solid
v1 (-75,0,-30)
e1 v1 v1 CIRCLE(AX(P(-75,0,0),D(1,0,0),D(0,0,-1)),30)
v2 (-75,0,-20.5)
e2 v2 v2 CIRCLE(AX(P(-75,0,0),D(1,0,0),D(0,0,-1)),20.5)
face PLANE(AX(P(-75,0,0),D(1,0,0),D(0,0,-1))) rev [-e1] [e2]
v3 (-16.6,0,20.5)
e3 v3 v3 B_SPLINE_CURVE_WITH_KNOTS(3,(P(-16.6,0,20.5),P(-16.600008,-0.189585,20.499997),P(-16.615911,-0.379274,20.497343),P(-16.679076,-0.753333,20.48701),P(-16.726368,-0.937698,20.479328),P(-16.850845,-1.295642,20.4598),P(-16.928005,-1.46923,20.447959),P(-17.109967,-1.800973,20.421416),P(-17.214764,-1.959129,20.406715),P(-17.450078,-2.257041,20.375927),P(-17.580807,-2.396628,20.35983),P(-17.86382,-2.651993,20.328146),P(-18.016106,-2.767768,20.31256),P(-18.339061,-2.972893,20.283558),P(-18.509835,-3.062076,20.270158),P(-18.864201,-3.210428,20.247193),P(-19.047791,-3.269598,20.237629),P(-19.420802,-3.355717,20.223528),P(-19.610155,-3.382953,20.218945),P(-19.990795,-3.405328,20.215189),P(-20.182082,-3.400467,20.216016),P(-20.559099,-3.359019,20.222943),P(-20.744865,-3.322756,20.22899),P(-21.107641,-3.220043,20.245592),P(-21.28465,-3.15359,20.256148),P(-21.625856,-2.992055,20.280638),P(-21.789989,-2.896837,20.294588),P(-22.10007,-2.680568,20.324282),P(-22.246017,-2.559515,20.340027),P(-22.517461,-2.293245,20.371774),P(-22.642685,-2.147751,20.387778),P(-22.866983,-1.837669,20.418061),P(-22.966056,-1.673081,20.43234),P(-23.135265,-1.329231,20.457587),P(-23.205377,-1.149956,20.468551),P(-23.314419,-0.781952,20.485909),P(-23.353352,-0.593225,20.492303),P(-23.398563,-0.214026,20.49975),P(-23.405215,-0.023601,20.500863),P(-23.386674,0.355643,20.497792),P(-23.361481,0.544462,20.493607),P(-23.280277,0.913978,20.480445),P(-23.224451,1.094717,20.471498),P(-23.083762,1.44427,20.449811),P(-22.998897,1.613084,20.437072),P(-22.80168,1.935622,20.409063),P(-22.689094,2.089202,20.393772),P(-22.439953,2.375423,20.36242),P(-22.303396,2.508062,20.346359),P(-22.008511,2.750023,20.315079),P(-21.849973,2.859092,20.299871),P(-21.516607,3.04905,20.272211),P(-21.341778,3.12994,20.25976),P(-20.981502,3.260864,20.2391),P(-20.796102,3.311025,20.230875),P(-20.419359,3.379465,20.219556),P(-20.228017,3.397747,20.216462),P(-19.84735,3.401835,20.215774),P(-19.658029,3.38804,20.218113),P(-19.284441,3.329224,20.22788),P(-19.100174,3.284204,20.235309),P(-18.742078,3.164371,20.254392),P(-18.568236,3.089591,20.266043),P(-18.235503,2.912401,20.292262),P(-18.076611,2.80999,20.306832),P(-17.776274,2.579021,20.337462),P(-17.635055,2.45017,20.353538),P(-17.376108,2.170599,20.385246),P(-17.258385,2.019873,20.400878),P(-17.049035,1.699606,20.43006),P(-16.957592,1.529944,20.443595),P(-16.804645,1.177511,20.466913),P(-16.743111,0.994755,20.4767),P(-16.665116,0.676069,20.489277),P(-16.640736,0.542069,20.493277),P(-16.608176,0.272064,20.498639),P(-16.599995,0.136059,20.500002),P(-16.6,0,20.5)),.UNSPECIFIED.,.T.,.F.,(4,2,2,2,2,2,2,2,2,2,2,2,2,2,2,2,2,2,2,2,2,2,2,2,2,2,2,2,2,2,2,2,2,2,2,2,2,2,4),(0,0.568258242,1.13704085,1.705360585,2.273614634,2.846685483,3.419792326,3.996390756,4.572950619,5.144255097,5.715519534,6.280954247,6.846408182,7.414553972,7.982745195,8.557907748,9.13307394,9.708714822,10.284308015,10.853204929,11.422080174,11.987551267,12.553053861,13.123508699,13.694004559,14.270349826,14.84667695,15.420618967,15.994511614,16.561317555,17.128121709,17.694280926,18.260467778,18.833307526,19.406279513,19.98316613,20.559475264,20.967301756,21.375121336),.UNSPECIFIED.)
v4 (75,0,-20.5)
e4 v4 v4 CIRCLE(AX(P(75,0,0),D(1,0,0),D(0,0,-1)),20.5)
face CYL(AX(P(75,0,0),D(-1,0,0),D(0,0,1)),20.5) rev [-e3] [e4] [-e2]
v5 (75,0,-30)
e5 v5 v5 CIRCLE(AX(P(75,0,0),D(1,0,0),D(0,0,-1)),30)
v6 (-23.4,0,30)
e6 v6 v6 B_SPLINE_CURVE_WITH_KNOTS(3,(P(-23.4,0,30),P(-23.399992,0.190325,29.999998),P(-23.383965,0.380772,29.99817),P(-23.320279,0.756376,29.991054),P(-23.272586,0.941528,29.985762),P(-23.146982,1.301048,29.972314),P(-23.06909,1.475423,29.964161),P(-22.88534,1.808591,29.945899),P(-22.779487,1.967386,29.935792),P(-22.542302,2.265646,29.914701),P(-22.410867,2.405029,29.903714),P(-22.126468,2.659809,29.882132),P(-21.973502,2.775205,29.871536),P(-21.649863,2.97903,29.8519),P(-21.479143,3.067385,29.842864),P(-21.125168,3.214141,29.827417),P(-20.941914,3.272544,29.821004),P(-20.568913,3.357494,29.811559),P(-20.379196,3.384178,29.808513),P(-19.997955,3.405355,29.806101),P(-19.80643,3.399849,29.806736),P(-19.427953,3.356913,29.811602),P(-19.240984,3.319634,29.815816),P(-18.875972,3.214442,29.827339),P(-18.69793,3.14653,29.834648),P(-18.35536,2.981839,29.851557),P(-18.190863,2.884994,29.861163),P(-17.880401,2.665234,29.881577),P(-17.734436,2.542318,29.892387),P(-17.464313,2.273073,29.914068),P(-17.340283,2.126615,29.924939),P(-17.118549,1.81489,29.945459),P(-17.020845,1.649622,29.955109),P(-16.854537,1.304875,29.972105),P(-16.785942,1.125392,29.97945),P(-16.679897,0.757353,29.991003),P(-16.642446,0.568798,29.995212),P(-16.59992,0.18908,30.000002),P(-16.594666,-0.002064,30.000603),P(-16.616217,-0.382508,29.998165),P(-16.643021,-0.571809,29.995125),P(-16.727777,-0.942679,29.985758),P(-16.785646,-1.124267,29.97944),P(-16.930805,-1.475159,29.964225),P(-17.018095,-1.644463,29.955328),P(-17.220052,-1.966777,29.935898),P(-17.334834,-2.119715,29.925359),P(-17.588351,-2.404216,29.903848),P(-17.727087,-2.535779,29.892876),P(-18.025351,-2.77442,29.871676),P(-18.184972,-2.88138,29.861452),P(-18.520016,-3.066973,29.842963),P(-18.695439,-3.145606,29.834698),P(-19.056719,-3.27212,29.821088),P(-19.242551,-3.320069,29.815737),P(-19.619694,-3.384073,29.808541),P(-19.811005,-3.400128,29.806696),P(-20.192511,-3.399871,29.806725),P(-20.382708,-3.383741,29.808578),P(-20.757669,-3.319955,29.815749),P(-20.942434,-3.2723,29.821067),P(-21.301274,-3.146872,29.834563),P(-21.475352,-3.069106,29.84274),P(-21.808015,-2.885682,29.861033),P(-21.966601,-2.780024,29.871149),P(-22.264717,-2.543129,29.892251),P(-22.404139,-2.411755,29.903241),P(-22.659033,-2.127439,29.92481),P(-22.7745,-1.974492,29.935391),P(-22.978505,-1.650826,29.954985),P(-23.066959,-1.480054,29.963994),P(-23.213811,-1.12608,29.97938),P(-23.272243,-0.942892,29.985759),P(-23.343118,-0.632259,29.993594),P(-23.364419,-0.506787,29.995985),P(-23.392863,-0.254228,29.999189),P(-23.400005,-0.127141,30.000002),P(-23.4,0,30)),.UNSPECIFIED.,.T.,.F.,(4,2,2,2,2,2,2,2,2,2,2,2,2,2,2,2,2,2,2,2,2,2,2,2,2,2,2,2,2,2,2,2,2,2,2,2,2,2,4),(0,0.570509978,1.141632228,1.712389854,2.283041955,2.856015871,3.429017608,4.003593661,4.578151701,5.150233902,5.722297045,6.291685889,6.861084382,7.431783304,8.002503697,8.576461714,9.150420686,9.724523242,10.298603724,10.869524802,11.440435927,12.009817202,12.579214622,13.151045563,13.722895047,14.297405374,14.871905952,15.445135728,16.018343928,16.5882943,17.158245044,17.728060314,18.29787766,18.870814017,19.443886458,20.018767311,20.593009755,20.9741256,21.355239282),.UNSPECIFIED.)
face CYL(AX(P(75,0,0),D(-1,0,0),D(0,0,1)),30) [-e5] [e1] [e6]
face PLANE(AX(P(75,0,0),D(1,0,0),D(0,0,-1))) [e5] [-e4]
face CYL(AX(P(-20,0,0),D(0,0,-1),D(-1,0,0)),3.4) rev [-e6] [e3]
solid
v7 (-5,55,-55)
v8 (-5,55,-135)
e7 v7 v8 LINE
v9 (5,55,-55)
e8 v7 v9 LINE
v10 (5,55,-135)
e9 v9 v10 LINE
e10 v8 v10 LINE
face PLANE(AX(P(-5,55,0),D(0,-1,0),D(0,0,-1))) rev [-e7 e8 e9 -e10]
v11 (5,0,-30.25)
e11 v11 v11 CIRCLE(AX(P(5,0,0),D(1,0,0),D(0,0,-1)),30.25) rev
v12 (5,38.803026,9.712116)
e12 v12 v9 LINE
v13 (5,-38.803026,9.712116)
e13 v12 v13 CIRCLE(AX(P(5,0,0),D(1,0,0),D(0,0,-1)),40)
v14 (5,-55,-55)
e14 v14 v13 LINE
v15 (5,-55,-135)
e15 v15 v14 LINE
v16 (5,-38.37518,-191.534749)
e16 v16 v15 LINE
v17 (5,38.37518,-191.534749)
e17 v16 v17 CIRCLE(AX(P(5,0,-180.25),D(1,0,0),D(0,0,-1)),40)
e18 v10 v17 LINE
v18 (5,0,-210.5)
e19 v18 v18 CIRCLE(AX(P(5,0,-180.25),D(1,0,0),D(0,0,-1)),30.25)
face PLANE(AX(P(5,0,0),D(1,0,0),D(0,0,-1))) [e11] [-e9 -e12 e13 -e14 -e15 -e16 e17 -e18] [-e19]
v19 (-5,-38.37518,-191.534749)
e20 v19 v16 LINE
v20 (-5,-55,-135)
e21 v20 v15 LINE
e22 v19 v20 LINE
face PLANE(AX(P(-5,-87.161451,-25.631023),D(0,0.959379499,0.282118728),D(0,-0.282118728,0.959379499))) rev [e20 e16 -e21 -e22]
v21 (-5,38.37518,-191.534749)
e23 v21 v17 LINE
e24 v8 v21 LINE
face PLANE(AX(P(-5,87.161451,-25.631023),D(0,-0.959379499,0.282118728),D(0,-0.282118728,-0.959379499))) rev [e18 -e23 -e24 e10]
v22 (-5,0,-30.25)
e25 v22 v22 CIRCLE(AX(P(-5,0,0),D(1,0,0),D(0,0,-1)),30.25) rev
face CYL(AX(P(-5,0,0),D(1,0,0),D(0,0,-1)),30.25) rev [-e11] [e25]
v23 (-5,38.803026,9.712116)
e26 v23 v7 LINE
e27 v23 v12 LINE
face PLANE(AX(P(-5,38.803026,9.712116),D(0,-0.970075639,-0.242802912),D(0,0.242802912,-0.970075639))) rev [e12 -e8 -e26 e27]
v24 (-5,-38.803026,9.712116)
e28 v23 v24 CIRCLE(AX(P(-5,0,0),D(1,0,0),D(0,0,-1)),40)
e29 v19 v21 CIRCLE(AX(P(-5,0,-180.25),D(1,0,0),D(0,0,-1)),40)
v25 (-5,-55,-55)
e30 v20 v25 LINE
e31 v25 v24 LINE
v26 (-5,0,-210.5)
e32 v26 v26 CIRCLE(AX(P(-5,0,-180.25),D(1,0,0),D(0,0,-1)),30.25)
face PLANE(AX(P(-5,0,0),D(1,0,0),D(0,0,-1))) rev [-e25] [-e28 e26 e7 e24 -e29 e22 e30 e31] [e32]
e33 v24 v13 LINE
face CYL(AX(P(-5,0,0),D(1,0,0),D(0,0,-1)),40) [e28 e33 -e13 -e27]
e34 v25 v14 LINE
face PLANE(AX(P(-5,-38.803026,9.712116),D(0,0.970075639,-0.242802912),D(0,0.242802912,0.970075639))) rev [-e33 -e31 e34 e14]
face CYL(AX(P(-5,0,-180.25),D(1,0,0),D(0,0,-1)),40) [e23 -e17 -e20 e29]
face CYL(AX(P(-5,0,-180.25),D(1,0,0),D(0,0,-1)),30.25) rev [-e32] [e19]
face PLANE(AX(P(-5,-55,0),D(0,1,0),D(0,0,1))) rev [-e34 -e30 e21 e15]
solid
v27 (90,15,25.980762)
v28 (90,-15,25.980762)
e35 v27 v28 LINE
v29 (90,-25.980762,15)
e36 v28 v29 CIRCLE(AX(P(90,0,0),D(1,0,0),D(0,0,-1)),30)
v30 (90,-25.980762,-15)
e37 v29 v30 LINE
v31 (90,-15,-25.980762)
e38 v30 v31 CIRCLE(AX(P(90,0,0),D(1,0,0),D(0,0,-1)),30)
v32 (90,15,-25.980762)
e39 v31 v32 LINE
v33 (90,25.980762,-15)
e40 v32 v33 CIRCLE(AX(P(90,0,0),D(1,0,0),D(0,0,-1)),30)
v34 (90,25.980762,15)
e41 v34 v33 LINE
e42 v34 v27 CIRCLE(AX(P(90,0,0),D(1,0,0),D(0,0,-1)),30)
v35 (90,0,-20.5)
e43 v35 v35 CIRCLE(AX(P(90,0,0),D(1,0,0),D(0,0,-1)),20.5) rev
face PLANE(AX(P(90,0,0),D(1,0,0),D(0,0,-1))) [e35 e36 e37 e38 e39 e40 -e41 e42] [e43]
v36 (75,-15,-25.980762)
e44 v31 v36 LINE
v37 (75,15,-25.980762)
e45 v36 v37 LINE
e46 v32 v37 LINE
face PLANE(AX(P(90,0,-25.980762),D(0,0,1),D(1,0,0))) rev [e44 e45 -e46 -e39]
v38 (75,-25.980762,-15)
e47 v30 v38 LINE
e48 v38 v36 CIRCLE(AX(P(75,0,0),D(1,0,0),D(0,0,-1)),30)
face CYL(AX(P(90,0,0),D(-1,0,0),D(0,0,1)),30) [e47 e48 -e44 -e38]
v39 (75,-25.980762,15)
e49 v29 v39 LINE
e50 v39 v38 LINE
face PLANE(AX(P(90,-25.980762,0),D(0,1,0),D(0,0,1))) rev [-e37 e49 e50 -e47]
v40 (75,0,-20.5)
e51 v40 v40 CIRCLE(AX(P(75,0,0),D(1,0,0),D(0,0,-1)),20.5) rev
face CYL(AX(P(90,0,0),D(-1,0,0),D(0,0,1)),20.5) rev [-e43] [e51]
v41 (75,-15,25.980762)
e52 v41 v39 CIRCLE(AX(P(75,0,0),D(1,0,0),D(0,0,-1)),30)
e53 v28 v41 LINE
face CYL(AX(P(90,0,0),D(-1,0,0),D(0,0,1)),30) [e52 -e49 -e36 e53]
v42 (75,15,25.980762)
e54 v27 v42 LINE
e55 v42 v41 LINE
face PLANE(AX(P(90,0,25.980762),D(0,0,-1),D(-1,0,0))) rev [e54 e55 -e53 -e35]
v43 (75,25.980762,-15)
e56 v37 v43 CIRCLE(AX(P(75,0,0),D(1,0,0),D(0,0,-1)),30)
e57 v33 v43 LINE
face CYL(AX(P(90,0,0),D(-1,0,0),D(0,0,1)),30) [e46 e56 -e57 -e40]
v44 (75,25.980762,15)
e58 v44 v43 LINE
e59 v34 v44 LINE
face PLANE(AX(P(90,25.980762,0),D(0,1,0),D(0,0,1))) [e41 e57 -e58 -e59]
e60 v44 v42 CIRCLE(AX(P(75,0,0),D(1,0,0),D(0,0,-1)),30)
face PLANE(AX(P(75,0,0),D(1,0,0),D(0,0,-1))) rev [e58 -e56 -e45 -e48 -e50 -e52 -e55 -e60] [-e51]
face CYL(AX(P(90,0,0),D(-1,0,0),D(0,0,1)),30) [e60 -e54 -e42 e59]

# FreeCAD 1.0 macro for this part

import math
import FreeCAD as App
import Part
import Sketcher
from FreeCAD import Vector


def add_polygon(sketch, points):
    """Adds a closed chain of lines whose ends are joined by coincident constraints."""
    first, n = sketch.GeometryCount, len(points)
    for a, b in zip(points, points[1:] + points[:1]):
        sketch.addGeometry(Part.LineSegment(App.Vector(*a, 0), App.Vector(*b, 0)), False)
    for i in range(n):
        sketch.addConstraint(Sketcher.Constraint("Coincident", first + i, 2, first + (i + 1) % n, 1))

doc = App.newDocument("Part")
params = doc.addObject("Spreadsheet::Sheet", "Params")
for row, (alias, value) in enumerate([
    ("sketch1_diameter", "60 mm"),
    ("sketch1_diameter2", "41 mm"),
    ("pad1_length", "150 mm"),
    ("sketch2_height", "30 mm"),
    ("sketch2_width", "3.4 mm"),
    ("groove_angle", "360 deg"),
    ("sketch3_diameter", "41 mm"),
    ("sketch3_radius", "30 mm"),
    ("sketch3_width", "30 mm"),
    ("pad2_length", "15 mm"),
    ("sketch4_diameter", "80 mm"),
    ("sketch4_diameter2", "60.5 mm"),
    ("pad3_length", "10 mm"),
    ("sketch5_radius", "40 mm"),
    ("sketch5_diameter", "60.5 mm"),
    ("sketch5_height", "80 mm"),
    ("pad4_length", "10 mm"),
], start=1):
    params.set(f"A{row}", alias)
    params.set(f"B{row}", "=" + value)
    params.setAlias(f"B{row}", alias)

body = doc.addObject("PartDesign::Body", "Body")

# Sketch on YZ plane
sketch1 = body.newObject("Sketcher::SketchObject", "Sketch")
sketch1.AttachmentSupport = (doc.getObject("YZ_Plane"), [""])
sketch1.MapMode = "FlatFace"
sketch1.AttachmentOffset = App.Placement(Vector(0, 0, -75), App.Rotation())
sketch1.addGeometry([
    Part.Circle(Vector(0, 0, 0), Vector(0, 0, 1), 30),
    Part.Circle(Vector(0, 0, 0), Vector(0, 0, 1), 20.5),
], False)
sketch1.addConstraint([
    Sketcher.Constraint("Coincident", 0, 3, -1, 1),
    Sketcher.Constraint("Coincident", 1, 3, -1, 1),
    Sketcher.Constraint("Diameter", 0, 60.0),
    Sketcher.Constraint("Diameter", 1, 41.0),
])
sketch1.setExpression("Constraints[2]", "Params.sketch1_diameter")
sketch1.setExpression("Constraints[3]", "Params.sketch1_diameter2")
pad1 = body.newObject("PartDesign::Pad", "Pad")
pad1.Profile = sketch1
pad1.setExpression("Length", "Params.pad1_length")

# Sketch on YZ plane
sketch2 = body.newObject("Sketcher::SketchObject", "Sketch001")
sketch2.AttachmentSupport = (doc.getObject("YZ_Plane"), [""])
sketch2.MapMode = "FlatFace"
sketch2.AttachmentOffset = App.Placement(Vector(0, 0, -20), App.Rotation())
add_polygon(sketch2, [(0, 30), (0, 0), (3.4, 0), (3.4, 30)])  # lines 0-3
sketch2.addConstraint([
    Sketcher.Constraint("Vertical", 0),
    Sketcher.Constraint("Horizontal", 1),
    Sketcher.Constraint("Vertical", 2),
    Sketcher.Constraint("Horizontal", 3),
    Sketcher.Constraint("Coincident", 0, 2, -1, 1),
    Sketcher.Constraint("DistanceY", 0, 2, 0, 1, 30.0),
    Sketcher.Constraint("DistanceX", 1, 1, 1, 2, 3.4),
])
sketch2.setExpression("Constraints[9]", "Params.sketch2_height")
sketch2.setExpression("Constraints[10]", "Params.sketch2_width")
groove = body.newObject("PartDesign::Groove", "Groove")
groove.Profile = sketch2
groove.ReferenceAxis = (sketch2, ["V_Axis"])
groove.setExpression("Angle", "Params.groove_angle")
body2 = doc.addObject("PartDesign::Body", "Body001")

# Sketch on YZ plane
sketch3 = body2.newObject("Sketcher::SketchObject", "Sketch002")
sketch3.AttachmentSupport = (doc.getObject("YZ_Plane001"), [""])
sketch3.MapMode = "FlatFace"
sketch3.AttachmentOffset = App.Placement(Vector(0, 0, 75), App.Rotation())
sketch3.addGeometry([
    Part.LineSegment(Vector(25.980762, -15, 0), Vector(25.980762, 15, 0)),  # 0
    Part.ArcOfCircle(Part.Circle(Vector(0, 0, 0), Vector(0, 0, 1), 30), math.radians(30), math.radians(60)),  # 1
    Part.LineSegment(Vector(15, 25.980762, 0), Vector(-15, 25.980762, 0)),  # 2
    Part.ArcOfCircle(Part.Circle(Vector(0, 0, 0), Vector(0, 0, 1), 30), math.radians(120), math.radians(150)),  # 3
    Part.LineSegment(Vector(-25.980762, 15, 0), Vector(-25.980762, -15, 0)),  # 4
    Part.ArcOfCircle(Part.Circle(Vector(0, 0, 0), Vector(0, 0, 1), 30), math.radians(-150), math.radians(-120)),  # 5
    Part.LineSegment(Vector(-15, -25.980762, 0), Vector(15, -25.980762, 0)),  # 6
    Part.ArcOfCircle(Part.Circle(Vector(0, 0, 0), Vector(0, 0, 1), 30), math.radians(-60), math.radians(-30)),  # 7
    Part.Circle(Vector(0, 0, 0), Vector(0, 0, 1), 20.5),  # 8
], False)
sketch3.addConstraint([
    Sketcher.Constraint("Coincident", 0, 2, 1, 1),
    Sketcher.Constraint("Coincident", 1, 2, 2, 1),
    Sketcher.Constraint("Coincident", 2, 2, 3, 1),
    Sketcher.Constraint("Coincident", 3, 2, 4, 1),
    Sketcher.Constraint("Coincident", 4, 2, 5, 1),
    Sketcher.Constraint("Coincident", 5, 2, 6, 1),
    Sketcher.Constraint("Coincident", 6, 2, 7, 1),
    Sketcher.Constraint("Coincident", 7, 2, 0, 1),
    Sketcher.Constraint("Vertical", 0),
    Sketcher.Constraint("Horizontal", 2),
    Sketcher.Constraint("Vertical", 4),
    Sketcher.Constraint("Horizontal", 6),
    Sketcher.Constraint("Coincident", 1, 3, -1, 1),
    Sketcher.Constraint("Coincident", 3, 3, -1, 1),
    Sketcher.Constraint("Coincident", 5, 3, -1, 1),
    Sketcher.Constraint("Coincident", 7, 3, -1, 1),
    Sketcher.Constraint("Coincident", 8, 3, -1, 1),
    Sketcher.Constraint("Equal", 1, 3),
    Sketcher.Constraint("Equal", 3, 5),
    Sketcher.Constraint("Equal", 5, 7),
    Sketcher.Constraint("Horizontal", 0, 2, 3, 2),
    Sketcher.Constraint("Vertical", 2, 2, 5, 2),
    Sketcher.Constraint("Equal", 6, 0),
    Sketcher.Constraint("Diameter", 8, 41.0),
    Sketcher.Constraint("Radius", 1, 30.0),
    Sketcher.Constraint("DistanceX", 2, 2, 2, 1, 30.0),
])
sketch3.setExpression("Constraints[23]", "Params.sketch3_diameter")
sketch3.setExpression("Constraints[24]", "Params.sketch3_radius")
sketch3.setExpression("Constraints[25]", "Params.sketch3_width")
pad2 = body2.newObject("PartDesign::Pad", "Pad001")
pad2.Profile = sketch3
pad2.setExpression("Length", "Params.pad2_length")
body3 = doc.addObject("PartDesign::Body", "Body002")

# Sketch on YZ plane
sketch4 = body3.newObject("Sketcher::SketchObject", "Sketch003")
sketch4.AttachmentSupport = (doc.getObject("YZ_Plane002"), [""])
sketch4.MapMode = "FlatFace"
sketch4.AttachmentOffset = App.Placement(Vector(0, 0, 5), App.Rotation())
sketch4.addGeometry([
    Part.Circle(Vector(0, 0, 0), Vector(0, 0, 1), 40),
    Part.Circle(Vector(0, 0, 0), Vector(0, 0, 1), 30.25),
], False)
sketch4.addConstraint([
    Sketcher.Constraint("Coincident", 0, 3, -1, 1),
    Sketcher.Constraint("Coincident", 1, 3, -1, 1),
    Sketcher.Constraint("Diameter", 0, 80.0),
    Sketcher.Constraint("Diameter", 1, 60.5),
])
sketch4.setExpression("Constraints[2]", "Params.sketch4_diameter")
sketch4.setExpression("Constraints[3]", "Params.sketch4_diameter2")
pad3 = body3.newObject("PartDesign::Pad", "Pad002")
pad3.Profile = sketch4
pad3.setExpression("Length", "Params.pad3_length")
pad3.Reversed = True
body4 = doc.addObject("PartDesign::Body", "Body003")

# Sketch on YZ plane
sketch5 = body4.newObject("Sketcher::SketchObject", "Sketch004")
sketch5.AttachmentSupport = (doc.getObject("YZ_Plane003"), [""])
sketch5.MapMode = "FlatFace"
sketch5.AttachmentOffset = App.Placement(Vector(0, 0, 5), App.Rotation())
sketch5.addGeometry([
    Part.LineSegment(Vector(55, -55, 0), Vector(38.803026, 9.712116, 0)),  # 0
    Part.ArcOfCircle(Part.Circle(Vector(0, 0, 0), Vector(0, 0, 1), 40), math.radians(14.05203), math.radians(165.94797)),  # 1
    Part.LineSegment(Vector(-38.803026, 9.712116, 0), Vector(-55, -55, 0)),  # 2
    Part.LineSegment(Vector(-55, -55, 0), Vector(-55, -135, 0)),  # 3
    Part.LineSegment(Vector(-55, -135, 0), Vector(-38.37518, -191.534749, 0)),  # 4
    Part.ArcOfCircle(Part.Circle(Vector(0, -180.25, 0), Vector(0, 0, 1), 40), math.radians(-163.613302), math.radians(-16.386698)),  # 5
    Part.LineSegment(Vector(38.37518, -191.534749, 0), Vector(55, -135, 0)),  # 6
    Part.LineSegment(Vector(55, -135, 0), Vector(55, -55, 0)),  # 7
    Part.Circle(Vector(0, 0, 0), Vector(0, 0, 1), 30.25),  # 8
    Part.Circle(Vector(0, -180.25, 0), Vector(0, 0, 1), 30.25),  # 9
], False)
sketch5.addConstraint([
    Sketcher.Constraint("Tangent", 0, 2, 1, 1),
    Sketcher.Constraint("Tangent", 1, 2, 2, 1),
    Sketcher.Constraint("Coincident", 2, 2, 3, 1),
    Sketcher.Constraint("Coincident", 3, 2, 4, 1),
    Sketcher.Constraint("Tangent", 4, 2, 5, 1),
    Sketcher.Constraint("Tangent", 5, 2, 6, 1),
    Sketcher.Constraint("Coincident", 6, 2, 7, 1),
    Sketcher.Constraint("Coincident", 7, 2, 0, 1),
    Sketcher.Constraint("Vertical", 3),
    Sketcher.Constraint("Vertical", 7),
    Sketcher.Constraint("Coincident", 1, 3, -1, 1),
    Sketcher.Constraint("Coincident", 8, 3, -1, 1),
    Sketcher.Constraint("Coincident", 9, 3, 5, 3),
    Sketcher.Constraint("Equal", 1, 5),
    Sketcher.Constraint("Equal", 8, 9),
    Sketcher.Constraint("Symmetric", 4, 2, 5, 2, -2),
    Sketcher.Constraint("Symmetric", 2, 2, 7, 2, -2),
    Sketcher.Constraint("Radius", 1, 40.0),
    Sketcher.Constraint("Diameter", 8, 60.5),
    Sketcher.Constraint("DistanceY", 3, 2, 3, 1, 80.0),
    Sketcher.Constraint("DistanceX", 2, 2, -1, 1, 55.0),
    Sketcher.Constraint("DistanceY", 2, 2, -1, 1, 55.0),
    Sketcher.Constraint("DistanceY", 5, 3, -1, 1, 180.25),
])
sketch5.setExpression("Constraints[17]", "Params.sketch5_radius")
sketch5.setExpression("Constraints[18]", "Params.sketch5_diameter")
sketch5.setExpression("Constraints[19]", "Params.sketch5_height")
pad4 = body4.newObject("PartDesign::Pad", "Pad003")
pad4.Profile = sketch5
pad4.setExpression("Length", "Params.pad4_length")
pad4.Reversed = True
body3.Visibility = False

doc.recompute()
